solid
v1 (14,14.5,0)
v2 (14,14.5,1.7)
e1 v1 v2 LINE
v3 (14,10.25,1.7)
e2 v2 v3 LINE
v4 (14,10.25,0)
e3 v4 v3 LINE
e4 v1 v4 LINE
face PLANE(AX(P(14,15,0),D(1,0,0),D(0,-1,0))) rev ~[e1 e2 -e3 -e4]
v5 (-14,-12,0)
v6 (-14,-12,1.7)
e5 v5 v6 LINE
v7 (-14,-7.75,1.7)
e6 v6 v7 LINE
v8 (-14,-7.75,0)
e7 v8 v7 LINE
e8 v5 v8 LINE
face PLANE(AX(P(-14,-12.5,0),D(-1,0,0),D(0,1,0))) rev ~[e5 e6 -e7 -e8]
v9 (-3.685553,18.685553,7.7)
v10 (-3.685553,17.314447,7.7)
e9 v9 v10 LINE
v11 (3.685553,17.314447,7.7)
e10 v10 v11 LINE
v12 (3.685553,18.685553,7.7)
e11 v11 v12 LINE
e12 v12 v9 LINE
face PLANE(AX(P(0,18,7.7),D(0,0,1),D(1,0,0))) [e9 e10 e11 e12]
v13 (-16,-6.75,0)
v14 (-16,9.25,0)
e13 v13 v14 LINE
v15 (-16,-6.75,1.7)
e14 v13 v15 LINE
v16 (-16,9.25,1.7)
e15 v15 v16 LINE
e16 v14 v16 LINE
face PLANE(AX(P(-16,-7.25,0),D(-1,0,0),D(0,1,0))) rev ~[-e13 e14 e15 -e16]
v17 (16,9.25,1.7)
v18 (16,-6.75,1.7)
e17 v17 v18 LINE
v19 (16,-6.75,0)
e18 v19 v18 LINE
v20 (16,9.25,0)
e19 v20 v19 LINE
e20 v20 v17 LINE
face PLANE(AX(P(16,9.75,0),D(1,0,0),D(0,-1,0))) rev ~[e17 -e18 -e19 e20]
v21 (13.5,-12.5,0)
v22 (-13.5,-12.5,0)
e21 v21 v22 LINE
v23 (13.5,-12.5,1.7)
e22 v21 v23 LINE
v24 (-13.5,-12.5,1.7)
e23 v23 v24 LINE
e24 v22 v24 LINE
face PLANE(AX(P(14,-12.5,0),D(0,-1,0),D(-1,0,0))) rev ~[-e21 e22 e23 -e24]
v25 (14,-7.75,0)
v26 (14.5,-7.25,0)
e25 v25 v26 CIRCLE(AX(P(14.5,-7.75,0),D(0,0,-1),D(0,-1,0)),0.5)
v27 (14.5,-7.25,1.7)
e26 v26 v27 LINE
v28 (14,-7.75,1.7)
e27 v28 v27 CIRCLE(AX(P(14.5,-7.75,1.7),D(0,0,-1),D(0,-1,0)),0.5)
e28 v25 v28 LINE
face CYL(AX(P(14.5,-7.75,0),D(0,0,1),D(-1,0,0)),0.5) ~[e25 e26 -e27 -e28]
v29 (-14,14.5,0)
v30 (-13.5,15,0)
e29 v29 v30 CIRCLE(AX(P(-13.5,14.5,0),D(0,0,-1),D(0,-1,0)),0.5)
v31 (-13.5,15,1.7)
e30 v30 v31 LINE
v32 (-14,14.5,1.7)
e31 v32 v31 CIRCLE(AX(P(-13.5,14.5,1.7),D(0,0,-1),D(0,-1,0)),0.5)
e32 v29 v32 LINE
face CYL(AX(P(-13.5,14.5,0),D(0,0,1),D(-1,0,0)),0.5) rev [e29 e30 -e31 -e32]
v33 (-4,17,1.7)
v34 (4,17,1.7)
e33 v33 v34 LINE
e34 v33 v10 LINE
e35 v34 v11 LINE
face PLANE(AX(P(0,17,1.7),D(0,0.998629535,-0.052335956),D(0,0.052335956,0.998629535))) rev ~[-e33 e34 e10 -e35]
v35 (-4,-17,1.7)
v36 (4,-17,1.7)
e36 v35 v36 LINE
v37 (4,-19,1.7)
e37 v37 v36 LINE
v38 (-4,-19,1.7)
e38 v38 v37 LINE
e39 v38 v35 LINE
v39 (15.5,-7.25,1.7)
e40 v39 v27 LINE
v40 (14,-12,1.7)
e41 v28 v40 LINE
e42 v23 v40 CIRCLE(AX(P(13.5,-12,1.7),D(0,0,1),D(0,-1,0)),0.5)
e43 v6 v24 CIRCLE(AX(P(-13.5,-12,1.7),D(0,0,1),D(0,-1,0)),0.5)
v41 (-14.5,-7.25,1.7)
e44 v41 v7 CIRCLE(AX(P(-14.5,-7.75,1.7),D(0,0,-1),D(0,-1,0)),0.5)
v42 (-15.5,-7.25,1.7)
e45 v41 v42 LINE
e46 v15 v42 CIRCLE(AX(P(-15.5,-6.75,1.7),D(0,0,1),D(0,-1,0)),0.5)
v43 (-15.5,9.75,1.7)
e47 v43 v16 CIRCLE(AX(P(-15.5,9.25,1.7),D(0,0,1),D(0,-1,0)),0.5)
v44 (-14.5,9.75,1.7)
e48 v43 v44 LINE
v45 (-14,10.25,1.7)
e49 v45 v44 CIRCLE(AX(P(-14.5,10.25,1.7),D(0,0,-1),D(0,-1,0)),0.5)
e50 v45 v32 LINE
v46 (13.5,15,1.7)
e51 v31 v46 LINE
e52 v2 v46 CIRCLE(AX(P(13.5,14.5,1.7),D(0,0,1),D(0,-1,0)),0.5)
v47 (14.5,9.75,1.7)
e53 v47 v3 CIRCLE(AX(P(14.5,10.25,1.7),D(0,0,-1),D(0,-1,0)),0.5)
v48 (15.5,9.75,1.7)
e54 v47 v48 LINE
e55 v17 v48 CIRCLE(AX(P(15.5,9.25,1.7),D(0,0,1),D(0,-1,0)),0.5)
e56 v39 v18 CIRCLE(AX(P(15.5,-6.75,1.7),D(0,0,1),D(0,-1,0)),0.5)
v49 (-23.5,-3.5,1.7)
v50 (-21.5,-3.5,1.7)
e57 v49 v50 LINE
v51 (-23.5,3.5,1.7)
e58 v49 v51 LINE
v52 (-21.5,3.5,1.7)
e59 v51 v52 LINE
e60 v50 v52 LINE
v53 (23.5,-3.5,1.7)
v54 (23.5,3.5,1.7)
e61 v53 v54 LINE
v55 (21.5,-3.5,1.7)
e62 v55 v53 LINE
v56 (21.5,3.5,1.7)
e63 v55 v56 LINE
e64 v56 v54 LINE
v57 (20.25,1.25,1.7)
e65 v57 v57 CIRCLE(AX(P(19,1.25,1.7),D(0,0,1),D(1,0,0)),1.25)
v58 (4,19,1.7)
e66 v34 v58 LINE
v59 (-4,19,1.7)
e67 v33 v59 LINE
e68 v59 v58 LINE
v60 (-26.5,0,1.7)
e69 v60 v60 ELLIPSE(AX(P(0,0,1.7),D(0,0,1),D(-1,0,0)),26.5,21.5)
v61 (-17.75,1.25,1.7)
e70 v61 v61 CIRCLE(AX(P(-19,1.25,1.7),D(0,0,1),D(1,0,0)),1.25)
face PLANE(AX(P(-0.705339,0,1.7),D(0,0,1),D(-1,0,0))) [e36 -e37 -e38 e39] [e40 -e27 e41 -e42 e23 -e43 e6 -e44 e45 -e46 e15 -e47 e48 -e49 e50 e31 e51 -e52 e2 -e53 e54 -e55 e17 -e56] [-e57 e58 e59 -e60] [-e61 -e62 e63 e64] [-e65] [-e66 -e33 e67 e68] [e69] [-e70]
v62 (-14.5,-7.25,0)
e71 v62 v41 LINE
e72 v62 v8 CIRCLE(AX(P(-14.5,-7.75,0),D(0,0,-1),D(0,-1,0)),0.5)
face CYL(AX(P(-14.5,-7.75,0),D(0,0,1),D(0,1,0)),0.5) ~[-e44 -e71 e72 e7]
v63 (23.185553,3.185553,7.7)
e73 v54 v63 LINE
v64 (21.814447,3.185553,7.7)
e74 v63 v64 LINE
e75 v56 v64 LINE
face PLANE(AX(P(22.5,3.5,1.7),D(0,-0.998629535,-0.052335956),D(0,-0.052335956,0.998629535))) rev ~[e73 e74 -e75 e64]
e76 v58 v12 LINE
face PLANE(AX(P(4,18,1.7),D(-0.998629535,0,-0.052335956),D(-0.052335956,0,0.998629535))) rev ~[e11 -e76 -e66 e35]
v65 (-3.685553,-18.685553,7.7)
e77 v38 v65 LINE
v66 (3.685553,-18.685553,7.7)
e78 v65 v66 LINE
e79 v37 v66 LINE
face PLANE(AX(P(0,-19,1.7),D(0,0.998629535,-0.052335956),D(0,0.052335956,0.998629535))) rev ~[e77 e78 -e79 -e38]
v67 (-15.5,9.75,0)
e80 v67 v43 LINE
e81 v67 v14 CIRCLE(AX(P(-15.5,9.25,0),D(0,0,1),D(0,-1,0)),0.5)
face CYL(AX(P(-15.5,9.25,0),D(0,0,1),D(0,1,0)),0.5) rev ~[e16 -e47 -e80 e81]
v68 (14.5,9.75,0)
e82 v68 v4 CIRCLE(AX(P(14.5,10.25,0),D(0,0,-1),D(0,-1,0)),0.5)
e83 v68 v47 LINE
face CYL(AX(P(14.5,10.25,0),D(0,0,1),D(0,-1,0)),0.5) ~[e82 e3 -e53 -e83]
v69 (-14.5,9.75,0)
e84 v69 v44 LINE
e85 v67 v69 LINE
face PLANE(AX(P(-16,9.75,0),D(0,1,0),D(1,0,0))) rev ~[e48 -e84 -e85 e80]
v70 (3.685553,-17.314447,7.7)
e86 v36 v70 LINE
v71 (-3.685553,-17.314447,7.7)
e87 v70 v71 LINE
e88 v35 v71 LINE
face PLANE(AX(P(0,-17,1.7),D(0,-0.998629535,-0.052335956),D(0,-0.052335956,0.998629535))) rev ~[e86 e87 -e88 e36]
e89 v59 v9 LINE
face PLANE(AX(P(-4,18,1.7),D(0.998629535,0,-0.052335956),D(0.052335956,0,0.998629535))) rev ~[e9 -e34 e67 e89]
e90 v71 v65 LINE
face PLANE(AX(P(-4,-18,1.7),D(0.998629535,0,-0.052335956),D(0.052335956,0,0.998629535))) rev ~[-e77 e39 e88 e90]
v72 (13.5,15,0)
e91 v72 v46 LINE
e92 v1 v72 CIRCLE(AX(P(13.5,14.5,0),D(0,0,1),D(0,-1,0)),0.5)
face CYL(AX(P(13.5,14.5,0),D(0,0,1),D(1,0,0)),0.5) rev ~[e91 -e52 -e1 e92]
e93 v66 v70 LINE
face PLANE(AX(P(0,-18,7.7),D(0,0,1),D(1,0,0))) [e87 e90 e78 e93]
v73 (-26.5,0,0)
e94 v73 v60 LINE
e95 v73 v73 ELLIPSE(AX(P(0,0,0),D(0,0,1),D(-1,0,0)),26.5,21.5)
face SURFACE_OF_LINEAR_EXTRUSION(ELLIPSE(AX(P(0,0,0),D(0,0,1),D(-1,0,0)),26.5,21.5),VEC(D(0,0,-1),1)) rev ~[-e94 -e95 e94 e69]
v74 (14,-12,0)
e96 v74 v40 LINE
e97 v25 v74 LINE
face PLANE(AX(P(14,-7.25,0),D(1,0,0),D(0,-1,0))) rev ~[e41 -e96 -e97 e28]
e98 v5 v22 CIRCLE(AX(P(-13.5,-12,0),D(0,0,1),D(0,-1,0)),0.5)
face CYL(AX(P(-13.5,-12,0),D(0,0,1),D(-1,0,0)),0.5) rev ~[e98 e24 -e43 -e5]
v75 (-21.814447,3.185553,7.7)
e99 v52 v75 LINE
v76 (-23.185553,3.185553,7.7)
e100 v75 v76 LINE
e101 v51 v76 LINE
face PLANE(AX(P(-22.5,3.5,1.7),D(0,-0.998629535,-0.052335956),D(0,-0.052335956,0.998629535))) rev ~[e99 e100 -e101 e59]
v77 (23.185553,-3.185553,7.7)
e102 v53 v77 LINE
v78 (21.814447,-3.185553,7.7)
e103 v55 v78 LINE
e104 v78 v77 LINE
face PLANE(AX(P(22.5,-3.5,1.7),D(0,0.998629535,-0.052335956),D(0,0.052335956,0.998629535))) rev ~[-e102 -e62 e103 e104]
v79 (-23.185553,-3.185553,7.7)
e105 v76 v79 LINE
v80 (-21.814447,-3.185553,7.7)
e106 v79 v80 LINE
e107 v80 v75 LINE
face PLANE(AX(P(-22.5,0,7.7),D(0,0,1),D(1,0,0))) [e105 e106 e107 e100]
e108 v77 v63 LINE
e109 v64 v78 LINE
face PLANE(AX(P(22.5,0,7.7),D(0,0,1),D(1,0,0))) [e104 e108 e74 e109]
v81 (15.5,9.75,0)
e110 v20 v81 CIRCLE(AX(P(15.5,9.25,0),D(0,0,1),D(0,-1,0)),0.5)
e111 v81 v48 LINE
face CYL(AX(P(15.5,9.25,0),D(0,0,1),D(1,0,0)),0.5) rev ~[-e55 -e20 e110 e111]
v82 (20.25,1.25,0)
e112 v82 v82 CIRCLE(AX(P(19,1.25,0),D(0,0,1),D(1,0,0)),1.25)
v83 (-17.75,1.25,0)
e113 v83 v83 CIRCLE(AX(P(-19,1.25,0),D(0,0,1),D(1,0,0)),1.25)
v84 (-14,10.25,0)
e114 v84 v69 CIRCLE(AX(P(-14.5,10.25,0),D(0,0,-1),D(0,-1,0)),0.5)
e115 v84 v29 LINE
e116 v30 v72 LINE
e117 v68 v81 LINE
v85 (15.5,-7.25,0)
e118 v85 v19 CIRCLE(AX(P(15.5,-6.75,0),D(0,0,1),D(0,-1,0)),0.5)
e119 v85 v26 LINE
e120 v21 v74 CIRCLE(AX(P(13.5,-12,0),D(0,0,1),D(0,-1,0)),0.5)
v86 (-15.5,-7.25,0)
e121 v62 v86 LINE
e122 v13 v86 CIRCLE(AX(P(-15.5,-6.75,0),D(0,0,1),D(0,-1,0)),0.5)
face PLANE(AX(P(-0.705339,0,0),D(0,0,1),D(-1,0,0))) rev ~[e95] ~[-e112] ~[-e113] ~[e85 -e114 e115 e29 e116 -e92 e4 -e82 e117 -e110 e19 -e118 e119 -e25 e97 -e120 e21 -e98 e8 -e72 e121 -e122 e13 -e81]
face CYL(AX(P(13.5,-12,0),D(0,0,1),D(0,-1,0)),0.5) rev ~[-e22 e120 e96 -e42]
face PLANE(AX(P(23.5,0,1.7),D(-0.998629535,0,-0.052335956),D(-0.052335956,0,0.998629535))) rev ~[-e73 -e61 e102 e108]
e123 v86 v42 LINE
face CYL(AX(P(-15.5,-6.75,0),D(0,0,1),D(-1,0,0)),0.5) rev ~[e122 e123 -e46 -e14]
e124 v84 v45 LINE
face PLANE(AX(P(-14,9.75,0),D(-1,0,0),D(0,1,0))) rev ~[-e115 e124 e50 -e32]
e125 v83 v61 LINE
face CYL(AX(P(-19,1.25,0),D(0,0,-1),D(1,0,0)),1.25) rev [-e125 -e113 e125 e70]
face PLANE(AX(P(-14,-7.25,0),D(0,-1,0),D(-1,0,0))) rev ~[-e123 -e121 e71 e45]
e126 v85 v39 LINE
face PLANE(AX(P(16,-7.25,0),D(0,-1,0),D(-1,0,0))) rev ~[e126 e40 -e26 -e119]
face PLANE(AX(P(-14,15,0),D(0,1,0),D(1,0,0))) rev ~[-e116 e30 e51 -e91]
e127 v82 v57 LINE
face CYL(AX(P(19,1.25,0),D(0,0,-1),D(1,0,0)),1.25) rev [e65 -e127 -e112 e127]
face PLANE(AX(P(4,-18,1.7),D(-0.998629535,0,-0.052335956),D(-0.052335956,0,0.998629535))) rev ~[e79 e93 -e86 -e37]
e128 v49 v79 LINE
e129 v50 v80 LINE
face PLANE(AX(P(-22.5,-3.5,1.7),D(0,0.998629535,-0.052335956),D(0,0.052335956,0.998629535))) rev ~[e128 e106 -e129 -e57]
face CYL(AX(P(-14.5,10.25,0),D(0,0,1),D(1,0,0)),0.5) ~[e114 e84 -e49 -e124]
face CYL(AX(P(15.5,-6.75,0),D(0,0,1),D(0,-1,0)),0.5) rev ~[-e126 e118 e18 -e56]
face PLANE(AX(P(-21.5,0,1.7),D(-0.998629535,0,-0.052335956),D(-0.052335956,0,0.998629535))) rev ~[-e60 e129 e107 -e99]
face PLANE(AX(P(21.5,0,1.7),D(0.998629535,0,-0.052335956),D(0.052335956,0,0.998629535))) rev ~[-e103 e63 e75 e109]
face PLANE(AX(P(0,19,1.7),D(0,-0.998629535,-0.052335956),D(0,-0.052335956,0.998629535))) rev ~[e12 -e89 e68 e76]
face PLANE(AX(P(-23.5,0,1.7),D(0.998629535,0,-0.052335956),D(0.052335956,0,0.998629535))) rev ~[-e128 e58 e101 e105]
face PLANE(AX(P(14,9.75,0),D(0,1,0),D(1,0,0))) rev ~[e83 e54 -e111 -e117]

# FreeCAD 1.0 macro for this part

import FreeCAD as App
import Part
import Sketcher
Q = App.Units.Quantity


def edges_at(feature, points):
    """Names of the edges that pass closest to the given points."""
    edges = feature.Shape.Edges
    near = lambda p: min(range(len(edges)), key=lambda i: edges[i].distToShape(Part.Vertex(*p))[0])
    return sorted({f"Edge{near(p) + 1}" for p in points})


def add_polygon(sketch, points):
    """Adds a closed chain of lines whose ends are joined by coincident constraints."""
    first, n = sketch.GeometryCount, len(points)
    for a, b in zip(points, points[1:] + points[:1]):
        sketch.addGeometry(Part.LineSegment(App.Vector(*a, 0), App.Vector(*b, 0)), False)
    for i in range(n):
        sketch.addConstraint(Sketcher.Constraint("Coincident", first + i, 2, first + (i + 1) % n, 1))

doc = App.newDocument("Part")
body = doc.addObject("PartDesign::Body", "Body")

# Sketch on XY plane
sketch1 = body.newObject("Sketcher::SketchObject", "Sketch")
sketch1.AttachmentSupport = (doc.getObject("XY_Plane"), [""])
sketch1.MapMode = "FlatFace"
sketch1.addGeometry(Part.Ellipse(App.Vector(-26.5, 0, 0), App.Vector(0, -21.5, 0), App.Vector(0, 0, 0)), False)  # 0
sketch1.addGeometry(Part.Circle(App.Vector(19, 1.25, 0), App.Vector(0, 0, 1), 1.25), False)  # 1
add_polygon(sketch1, [(-14, 9.75), (-14, 15), (14, 15), (14, 9.75), (16, 9.75), (16, -7.25), (14, -7.25), (14, -12.5), (-14, -12.5), (-14, -7.25), (-16, -7.25), (-16, 9.75)])  # lines 2-13
sketch1.addGeometry(Part.Circle(App.Vector(-19, 1.25, 0), App.Vector(0, 0, 1), 1.25), False)  # 14
sketch1.addConstraint([
    Sketcher.Constraint("Block", 0),
    Sketcher.Constraint("Vertical", 2),
    Sketcher.Constraint("Horizontal", 3),
    Sketcher.Constraint("Vertical", 4),
    Sketcher.Constraint("Horizontal", 5),
    Sketcher.Constraint("Vertical", 6),
    Sketcher.Constraint("Horizontal", 7),
    Sketcher.Constraint("Vertical", 8),
    Sketcher.Constraint("Horizontal", 9),
    Sketcher.Constraint("Vertical", 10),
    Sketcher.Constraint("Horizontal", 11),
    Sketcher.Constraint("Vertical", 12),
    Sketcher.Constraint("Horizontal", 13),
    Sketcher.Constraint("Equal", 1, 14),
    Sketcher.Constraint("Symmetric", 1, 3, 14, 3, -2),
    Sketcher.Constraint("Symmetric", 7, 2, 10, 2, -2),
    Sketcher.Constraint("Symmetric", 5, 2, 12, 2, -2),
    Sketcher.Constraint("Vertical", 4, 2, 7, 2),
    Sketcher.Constraint("Vertical", 2, 2, 9, 2),
    Sketcher.Constraint("Equal", 4, 8),
    Sketcher.Constraint("Diameter", 1, Q("2.5 mm")),
    Sketcher.Constraint("DistanceX", 3, 1, 3, 2, Q("28 mm")),
    Sketcher.Constraint("DistanceX", 5, 1, 5, 2, Q("2 mm")),
    Sketcher.Constraint("DistanceY", 6, 2, 6, 1, Q("17 mm")),
    Sketcher.Constraint("DistanceX", -1, 1, 1, 3, Q("19 mm")),
    Sketcher.Constraint("DistanceY", -1, 1, 2, 2, Q("15 mm")),
    Sketcher.Constraint("DistanceY", 2, 1, 2, 2, Q("5.25 mm")),
    Sketcher.Constraint("DistanceY", 1, 3, 4, 2, Q("8.5 mm")),
])
pad1 = body.newObject("PartDesign::Pad", "Pad")
pad1.Profile = sketch1
pad1.Length = 1.7
doc.recompute()

fillet = body.newObject("PartDesign::Fillet", "Fillet")
fillet.Base = (pad1, edges_at(pad1, [
    (-14, 15, 0.85),
    (-14, 9.75, 0.85),
    (-16, 9.75, 0.85),
    (-16, -7.25, 0.85),
    (-14, -7.25, 0.85),
    (-14, -12.5, 0.85),
    (14, -12.5, 0.85),
    (14, -7.25, 0.85),
    (16, -7.25, 0.85),
    (16, 9.75, 0.85),
    (14, 9.75, 0.85),
    (14, 15, 0.85),
]))
fillet.Radius = 0.5

# Sketch on XY plane
sketch2 = body.newObject("Sketcher::SketchObject", "Sketch001")
sketch2.AttachmentSupport = (doc.getObject("XY_Plane"), [""])
sketch2.MapMode = "FlatFace"
sketch2.AttachmentOffset = App.Placement(App.Vector(0, 0, 1.7), App.Rotation())
add_polygon(sketch2, [(-23.5, 3.5), (-23.5, -3.5), (-21.5, -3.5), (-21.5, 3.5)])  # lines 0-3
add_polygon(sketch2, [(-4, 19), (-4, 17), (4, 17), (4, 19)])  # lines 4-7
add_polygon(sketch2, [(-4, -17), (-4, -19), (4, -19), (4, -17)])  # lines 8-11
add_polygon(sketch2, [(21.5, 3.5), (21.5, -3.5), (23.5, -3.5), (23.5, 3.5)])  # lines 12-15
sketch2.addConstraint([
    Sketcher.Constraint("Vertical", 0),
    Sketcher.Constraint("Horizontal", 1),
    Sketcher.Constraint("Vertical", 2),
    Sketcher.Constraint("Horizontal", 3),
    Sketcher.Constraint("Vertical", 4),
    Sketcher.Constraint("Horizontal", 5),
    Sketcher.Constraint("Vertical", 6),
    Sketcher.Constraint("Horizontal", 7),
    Sketcher.Constraint("Vertical", 8),
    Sketcher.Constraint("Horizontal", 9),
    Sketcher.Constraint("Vertical", 10),
    Sketcher.Constraint("Horizontal", 11),
    Sketcher.Constraint("Vertical", 12),
    Sketcher.Constraint("Horizontal", 13),
    Sketcher.Constraint("Vertical", 14),
    Sketcher.Constraint("Horizontal", 15),
    Sketcher.Constraint("Symmetric", 6, 2, 8, 2, -1, 1),
    Sketcher.Constraint("Symmetric", 4, 2, 10, 2, -1, 1),
    Sketcher.Constraint("Symmetric", 2, 2, 12, 2, -1, 1),
    Sketcher.Constraint("Symmetric", 0, 2, 14, 2, -1, 1),
    Sketcher.Constraint("Horizontal", 1, 2, 12, 2),
    Sketcher.Constraint("Vertical", 7, 2, 8, 2),
    Sketcher.Constraint("Equal", 15, 4),
    Sketcher.Constraint("DistanceX", 1, 1, 1, 2, Q("2 mm")),
    Sketcher.Constraint("DistanceX", 5, 1, 5, 2, Q("8 mm")),
    Sketcher.Constraint("DistanceY", 0, 2, 0, 1, Q("7 mm")),
    Sketcher.Constraint("DistanceY", -1, 1, 4, 2, Q("17 mm")),
    Sketcher.Constraint("DistanceX", 0, 2, -1, 1, Q("23.5 mm")),
])
pad2 = body.newObject("PartDesign::Pad", "Pad001")
pad2.Profile = sketch2
pad2.Length = 6
pad2.TaperAngle = -3

doc.recompute()
